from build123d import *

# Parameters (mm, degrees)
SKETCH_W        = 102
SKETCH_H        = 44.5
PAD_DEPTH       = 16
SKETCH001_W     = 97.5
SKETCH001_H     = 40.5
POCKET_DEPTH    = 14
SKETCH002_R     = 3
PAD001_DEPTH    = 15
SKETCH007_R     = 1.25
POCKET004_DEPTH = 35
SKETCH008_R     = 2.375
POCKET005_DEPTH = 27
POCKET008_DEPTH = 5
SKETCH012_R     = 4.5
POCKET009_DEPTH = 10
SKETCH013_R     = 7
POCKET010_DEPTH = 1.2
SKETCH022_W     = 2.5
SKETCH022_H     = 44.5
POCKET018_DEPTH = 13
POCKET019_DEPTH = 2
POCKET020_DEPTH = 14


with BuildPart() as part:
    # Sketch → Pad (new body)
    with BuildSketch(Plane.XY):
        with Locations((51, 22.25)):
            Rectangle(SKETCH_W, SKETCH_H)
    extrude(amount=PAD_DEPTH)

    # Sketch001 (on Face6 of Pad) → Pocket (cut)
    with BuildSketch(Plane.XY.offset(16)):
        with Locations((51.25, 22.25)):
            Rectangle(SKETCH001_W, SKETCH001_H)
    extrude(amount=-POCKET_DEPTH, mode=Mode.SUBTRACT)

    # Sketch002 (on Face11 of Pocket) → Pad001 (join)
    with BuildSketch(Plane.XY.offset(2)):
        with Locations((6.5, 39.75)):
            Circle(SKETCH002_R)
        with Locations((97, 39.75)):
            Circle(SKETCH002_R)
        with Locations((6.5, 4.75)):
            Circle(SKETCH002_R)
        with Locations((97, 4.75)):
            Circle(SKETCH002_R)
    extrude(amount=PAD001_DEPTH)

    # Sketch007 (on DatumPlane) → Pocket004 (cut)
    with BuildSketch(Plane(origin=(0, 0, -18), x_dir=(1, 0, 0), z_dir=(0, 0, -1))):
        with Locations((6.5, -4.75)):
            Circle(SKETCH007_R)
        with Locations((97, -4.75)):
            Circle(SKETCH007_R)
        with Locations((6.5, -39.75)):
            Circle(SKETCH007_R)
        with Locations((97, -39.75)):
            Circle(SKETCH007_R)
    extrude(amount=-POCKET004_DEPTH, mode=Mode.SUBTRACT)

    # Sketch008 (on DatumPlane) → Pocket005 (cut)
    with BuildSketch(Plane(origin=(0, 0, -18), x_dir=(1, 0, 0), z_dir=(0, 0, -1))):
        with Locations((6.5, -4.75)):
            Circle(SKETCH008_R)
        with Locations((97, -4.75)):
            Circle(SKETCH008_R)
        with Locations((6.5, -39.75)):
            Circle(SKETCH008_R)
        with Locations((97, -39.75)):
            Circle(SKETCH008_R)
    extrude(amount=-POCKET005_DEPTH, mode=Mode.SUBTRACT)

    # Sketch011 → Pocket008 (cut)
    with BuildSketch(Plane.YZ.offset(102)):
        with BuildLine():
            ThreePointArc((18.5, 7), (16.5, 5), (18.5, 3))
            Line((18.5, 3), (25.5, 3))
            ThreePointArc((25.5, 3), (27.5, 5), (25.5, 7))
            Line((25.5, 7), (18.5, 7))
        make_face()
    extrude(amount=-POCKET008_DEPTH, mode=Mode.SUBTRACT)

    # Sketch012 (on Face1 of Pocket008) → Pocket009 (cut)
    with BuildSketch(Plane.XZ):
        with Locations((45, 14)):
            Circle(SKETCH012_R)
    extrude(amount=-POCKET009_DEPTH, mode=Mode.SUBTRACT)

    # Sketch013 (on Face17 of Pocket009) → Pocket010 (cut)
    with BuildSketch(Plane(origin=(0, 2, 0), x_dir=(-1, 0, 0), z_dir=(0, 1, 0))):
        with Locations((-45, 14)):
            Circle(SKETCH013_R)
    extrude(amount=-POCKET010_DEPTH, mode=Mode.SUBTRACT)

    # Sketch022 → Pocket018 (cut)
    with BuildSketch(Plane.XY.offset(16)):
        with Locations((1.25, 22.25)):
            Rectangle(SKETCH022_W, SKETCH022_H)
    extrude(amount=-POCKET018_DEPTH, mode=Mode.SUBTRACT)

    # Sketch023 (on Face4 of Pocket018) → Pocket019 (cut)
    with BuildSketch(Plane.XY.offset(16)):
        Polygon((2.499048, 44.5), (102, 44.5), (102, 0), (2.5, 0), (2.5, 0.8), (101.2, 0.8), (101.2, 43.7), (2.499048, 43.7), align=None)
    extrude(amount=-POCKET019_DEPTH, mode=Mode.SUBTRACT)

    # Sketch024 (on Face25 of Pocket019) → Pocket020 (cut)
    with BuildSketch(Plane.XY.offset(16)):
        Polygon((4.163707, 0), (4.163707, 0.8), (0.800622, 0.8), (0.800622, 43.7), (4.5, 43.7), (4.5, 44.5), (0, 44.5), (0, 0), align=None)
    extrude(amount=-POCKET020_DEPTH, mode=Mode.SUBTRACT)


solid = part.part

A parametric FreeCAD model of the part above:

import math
import FreeCAD as App
import Part
import Sketcher

V = App.Vector


def add_polygon(sketch, points):
    """Adds a closed chain of lines whose ends are joined by coincident constraints."""
    first, n = sketch.GeometryCount, len(points)
    for a, b in zip(points, points[1:] + points[:1]):
        sketch.addGeometry(Part.LineSegment(App.Vector(*a, 0), App.Vector(*b, 0)), False)
    for i in range(n):
        sketch.addConstraint(Sketcher.Constraint("Coincident", first + i, 2, first + (i + 1) % n, 1))

doc = App.newDocument("Part")
body = doc.addObject("PartDesign::Body", "Body")

sketch1 = body.newObject("Sketcher::SketchObject", "Sketch")
sketch1.AttachmentSupport = (doc.getObject("XY_Plane"), [""])
sketch1.MapMode = "FlatFace"
add_polygon(sketch1, [(0, 44), (0, 0), (102, 0), (102, 44)])
sketch1.addConstraint(Sketcher.Constraint("Vertical", 0))
sketch1.addConstraint(Sketcher.Constraint("Horizontal", 1))
sketch1.addConstraint(Sketcher.Constraint("Vertical", 2))
sketch1.addConstraint(Sketcher.Constraint("Horizontal", 3))
sketch1.addConstraint(Sketcher.Constraint("Coincident", 0, 2, -1, 1))
sketch1.addConstraint(Sketcher.Constraint("DistanceX", 1, 1, 1, 2, 102.0))
sketch1.addConstraint(Sketcher.Constraint("DistanceY", 0, 2, 0, 1, 44.5))
pad1 = body.newObject("PartDesign::Pad", "Pad")
pad1.Profile = sketch1
pad1.Length = 16

sketch2 = body.newObject("Sketcher::SketchObject", "Sketch001")
sketch2.AttachmentSupport = (doc.getObject("XY_Plane"), [""])
sketch2.MapMode = "FlatFace"
sketch2.AttachmentOffset = App.Placement(V(0, 0, 16), App.Rotation())
add_polygon(sketch2, [(2, 42), (2, 2), (100, 2), (100, 42)])
sketch2.addConstraint(Sketcher.Constraint("Vertical", 0))
sketch2.addConstraint(Sketcher.Constraint("Horizontal", 1))
sketch2.addConstraint(Sketcher.Constraint("Vertical", 2))
sketch2.addConstraint(Sketcher.Constraint("Horizontal", 3))
sketch2.addConstraint(Sketcher.Constraint("DistanceX", 1, 1, 1, 2, 97.5))
sketch2.addConstraint(Sketcher.Constraint("DistanceY", 0, 2, 0, 1, 40.5))
sketch2.addConstraint(Sketcher.Constraint("DistanceY", -1, 1, 0, 2, 2.0))
sketch2.addConstraint(Sketcher.Constraint("DistanceX", -1, 1, 1, 2, 100.0))
pocket1 = body.newObject("PartDesign::Pocket", "Pocket")
pocket1.Profile = sketch2
pocket1.Length = 14

sketch3 = body.newObject("Sketcher::SketchObject", "Sketch002")
sketch3.AttachmentSupport = (doc.getObject("XY_Plane"), [""])
sketch3.MapMode = "FlatFace"
sketch3.AttachmentOffset = App.Placement(V(0, 0, 2), App.Rotation())
sketch3.addGeometry(Part.Circle(V(6.5, 39.8, 0), V(0, 0, 1), 3), False)
sketch3.addGeometry(Part.Circle(V(97, 39.8, 0), V(0, 0, 1), 3), False)
sketch3.addGeometry(Part.Circle(V(6.5, 4.8, 0), V(0, 0, 1), 3), False)
sketch3.addGeometry(Part.Circle(V(97, 4.8, 0), V(0, 0, 1), 3), False)
sketch3.addConstraint(Sketcher.Constraint("Equal", 0, 1))
sketch3.addConstraint(Sketcher.Constraint("Equal", 1, 2))
sketch3.addConstraint(Sketcher.Constraint("Equal", 2, 3))
sketch3.addConstraint(Sketcher.Constraint("Horizontal", 0, 3, 1, 3))
sketch3.addConstraint(Sketcher.Constraint("Horizontal", 2, 3, 3, 3))
sketch3.addConstraint(Sketcher.Constraint("Vertical", 0, 3, 2, 3))
sketch3.addConstraint(Sketcher.Constraint("Vertical", 1, 3, 3, 3))
sketch3.addConstraint(Sketcher.Constraint("Diameter", 0, 6.0))
sketch3.addConstraint(Sketcher.Constraint("DistanceX", -1, 1, 1, 3, 97.0))
sketch3.addConstraint(Sketcher.Constraint("DistanceY", 2, 3, 0, 3, 35.0))
sketch3.addConstraint(Sketcher.Constraint("DistanceX", -1, 1, 0, 3, 6.5))
sketch3.addConstraint(Sketcher.Constraint("DistanceY", -1, 1, 0, 3, 39.75))
pad2 = body.newObject("PartDesign::Pad", "Pad001")
pad2.Profile = sketch3
pad2.Length = 15

sketch4 = body.newObject("Sketcher::SketchObject", "Sketch003")
sketch4.AttachmentSupport = (doc.getObject("XY_Plane"), [""])
sketch4.MapMode = "FlatFace"
sketch4.AttachmentOffset = App.Placement(V(0, 0, -18), App.Rotation())
sketch4.addGeometry(Part.Circle(V(6.5, 4.8, 0), V(0, 0, 1), 1.2), False)
sketch4.addGeometry(Part.Circle(V(97, 4.8, 0), V(0, 0, 1), 1.2), False)
sketch4.addGeometry(Part.Circle(V(6.5, 39.8, 0), V(0, 0, 1), 1.2), False)
sketch4.addGeometry(Part.Circle(V(97, 39.8, 0), V(0, 0, 1), 1.2), False)
sketch4.addConstraint(Sketcher.Constraint("Equal", 0, 1))
sketch4.addConstraint(Sketcher.Constraint("Equal", 1, 2))
sketch4.addConstraint(Sketcher.Constraint("Equal", 2, 3))
sketch4.addConstraint(Sketcher.Constraint("Horizontal", 0, 3, 1, 3))
sketch4.addConstraint(Sketcher.Constraint("Horizontal", 2, 3, 3, 3))
sketch4.addConstraint(Sketcher.Constraint("Vertical", 0, 3, 2, 3))
sketch4.addConstraint(Sketcher.Constraint("Vertical", 1, 3, 3, 3))
sketch4.addConstraint(Sketcher.Constraint("Diameter", 0, 2.5))
sketch4.addConstraint(Sketcher.Constraint("DistanceX", -1, 1, 1, 3, 97.0))
sketch4.addConstraint(Sketcher.Constraint("DistanceY", 0, 3, 2, 3, 35.0))
sketch4.addConstraint(Sketcher.Constraint("DistanceX", -1, 1, 0, 3, 6.5))
sketch4.addConstraint(Sketcher.Constraint("DistanceY", -1, 1, 0, 3, 4.75))
pocket2 = body.newObject("PartDesign::Pocket", "Pocket001")
pocket2.Profile = sketch4
pocket2.Length = 35
pocket2.Reversed = True

sketch5 = body.newObject("Sketcher::SketchObject", "Sketch004")
sketch5.AttachmentSupport = (doc.getObject("XY_Plane"), [""])
sketch5.MapMode = "FlatFace"
sketch5.AttachmentOffset = App.Placement(V(0, 0, -18), App.Rotation())
sketch5.addGeometry(Part.Circle(V(6.5, 4.8, 0), V(0, 0, 1), 2.4), False)
sketch5.addGeometry(Part.Circle(V(97, 4.8, 0), V(0, 0, 1), 2.4), False)
sketch5.addGeometry(Part.Circle(V(6.5, 39.8, 0), V(0, 0, 1), 2.4), False)
sketch5.addGeometry(Part.Circle(V(97, 39.8, 0), V(0, 0, 1), 2.4), False)
sketch5.addConstraint(Sketcher.Constraint("Equal", 0, 1))
sketch5.addConstraint(Sketcher.Constraint("Equal", 1, 2))
sketch5.addConstraint(Sketcher.Constraint("Equal", 2, 3))
sketch5.addConstraint(Sketcher.Constraint("Horizontal", 0, 3, 1, 3))
sketch5.addConstraint(Sketcher.Constraint("Horizontal", 2, 3, 3, 3))
sketch5.addConstraint(Sketcher.Constraint("Vertical", 0, 3, 2, 3))
sketch5.addConstraint(Sketcher.Constraint("Vertical", 1, 3, 3, 3))
sketch5.addConstraint(Sketcher.Constraint("Diameter", 0, 4.75))
sketch5.addConstraint(Sketcher.Constraint("DistanceX", -1, 1, 1, 3, 97.0))
sketch5.addConstraint(Sketcher.Constraint("DistanceY", 0, 3, 2, 3, 35.0))
sketch5.addConstraint(Sketcher.Constraint("DistanceX", -1, 1, 0, 3, 6.5))
sketch5.addConstraint(Sketcher.Constraint("DistanceY", -1, 1, 0, 3, 4.75))
pocket3 = body.newObject("PartDesign::Pocket", "Pocket002")
pocket3.Profile = sketch5
pocket3.Length = 27
pocket3.Reversed = True

sketch6 = body.newObject("Sketcher::SketchObject", "Sketch005")
sketch6.AttachmentSupport = (doc.getObject("YZ_Plane"), [""])
sketch6.MapMode = "FlatFace"
sketch6.AttachmentOffset = App.Placement(V(0, 0, 102), App.Rotation())
sketch6.addGeometry(Part.ArcOfCircle(Part.Circle(V(18.5, 5, 0), V(0, 0, 1), 2), math.radians(90), math.radians(270)), False)
sketch6.addGeometry(Part.LineSegment(V(18.5, 3, 0), V(25.5, 3, 0)), False)
sketch6.addGeometry(Part.ArcOfCircle(Part.Circle(V(25.5, 5, 0), V(0, 0, 1), 2), math.radians(-90), math.radians(90)), False)
sketch6.addGeometry(Part.LineSegment(V(25.5, 7, 0), V(18.5, 7, 0)), False)
sketch6.addConstraint(Sketcher.Constraint("Tangent", 0, 2, 1, 1))
sketch6.addConstraint(Sketcher.Constraint("Tangent", 1, 2, 2, 1))
sketch6.addConstraint(Sketcher.Constraint("Tangent", 2, 2, 3, 1))
sketch6.addConstraint(Sketcher.Constraint("Tangent", 3, 2, 0, 1))
sketch6.addConstraint(Sketcher.Constraint("Horizontal", 1))
sketch6.addConstraint(Sketcher.Constraint("Horizontal", 3))
sketch6.addConstraint(Sketcher.Constraint("Radius", 0, 2.0))
sketch6.addConstraint(Sketcher.Constraint("DistanceX", 1, 1, 1, 2, 7.0))
sketch6.addConstraint(Sketcher.Constraint("DistanceY", -1, 1, 0, 3, 5.0))
sketch6.addConstraint(Sketcher.Constraint("DistanceX", -1, 1, 0, 3, 18.5))
pocket4 = body.newObject("PartDesign::Pocket", "Pocket003")
pocket4.Profile = sketch6
pocket4.Length = 5

sketch7 = body.newObject("Sketcher::SketchObject", "Sketch006")
sketch7.AttachmentSupport = (doc.getObject("XZ_Plane"), [""])
sketch7.MapMode = "FlatFace"
sketch7.addGeometry(Part.Circle(V(45, 14, 0), V(0, 0, 1), 4.5), False)
sketch7.addConstraint(Sketcher.Constraint("Diameter", 0, 9.0))
sketch7.addConstraint(Sketcher.Constraint("DistanceX", -1, 1, 0, 3, 45.0))
sketch7.addConstraint(Sketcher.Constraint("DistanceY", -1, 1, 0, 3, 14.0))
pocket5 = body.newObject("PartDesign::Pocket", "Pocket004")
pocket5.Profile = sketch7
pocket5.Length = 10

sketch8 = body.newObject("Sketcher::SketchObject", "Sketch007")
sketch8.AttachmentSupport = (doc.getObject("XZ_Plane"), [""])
sketch8.MapMode = "FlatFace"
sketch8.AttachmentOffset = App.Placement(V(0, 0, -2), App.Rotation())
sketch8.addGeometry(Part.Circle(V(45, 14, 0), V(0, 0, 1), 7), False)
sketch8.addConstraint(Sketcher.Constraint("Diameter", 0, 14.0))
sketch8.addConstraint(Sketcher.Constraint("DistanceX", -1, 1, 0, 3, 45.0))
sketch8.addConstraint(Sketcher.Constraint("DistanceY", -1, 1, 0, 3, 14.0))
pocket6 = body.newObject("PartDesign::Pocket", "Pocket005")
pocket6.Profile = sketch8
pocket6.Length = 1.2
pocket6.Reversed = True

sketch9 = body.newObject("Sketcher::SketchObject", "Sketch008")
sketch9.AttachmentSupport = (doc.getObject("XY_Plane"), [""])
sketch9.MapMode = "FlatFace"
sketch9.AttachmentOffset = App.Placement(V(0, 0, 16), App.Rotation())
add_polygon(sketch9, [(0, 44.5), (0, 0), (2.5, 0), (2.5, 44.5)])
sketch9.addConstraint(Sketcher.Constraint("Vertical", 0))
sketch9.addConstraint(Sketcher.Constraint("Horizontal", 1))
sketch9.addConstraint(Sketcher.Constraint("Vertical", 2))
sketch9.addConstraint(Sketcher.Constraint("Horizontal", 3))
sketch9.addConstraint(Sketcher.Constraint("Coincident", 0, 2, -1, 1))
sketch9.addConstraint(Sketcher.Constraint("DistanceX", 1, 1, 1, 2, 2.5))
sketch9.addConstraint(Sketcher.Constraint("DistanceY", 0, 2, 0, 1, 44.5))
pocket7 = body.newObject("PartDesign::Pocket", "Pocket006")
pocket7.Profile = sketch9
pocket7.Length = 13

sketch10 = body.newObject("Sketcher::SketchObject", "Sketch009")
sketch10.AttachmentSupport = (doc.getObject("XY_Plane"), [""])
sketch10.MapMode = "FlatFace"
sketch10.AttachmentOffset = App.Placement(V(0, 0, 16), App.Rotation())
add_polygon(sketch10, [(102, 44.5), (2.5, 44.5), (2.5, 43.7), (101.2, 43.7), (101.2, 0.8), (2.5, 0.8), (2.5, 0), (102, 0)])
sketch10.addConstraint(Sketcher.Constraint("Horizontal", 0))
sketch10.addConstraint(Sketcher.Constraint("Vertical", 1))
sketch10.addConstraint(Sketcher.Constraint("Horizontal", 2))
sketch10.addConstraint(Sketcher.Constraint("Vertical", 3))
sketch10.addConstraint(Sketcher.Constraint("Horizontal", 4))
sketch10.addConstraint(Sketcher.Constraint("Vertical", 5))
sketch10.addConstraint(Sketcher.Constraint("Horizontal", 6))
sketch10.addConstraint(Sketcher.Constraint("Vertical", 7))
sketch10.addConstraint(Sketcher.Constraint("PointOnObject", 5, 2, -1))
sketch10.addConstraint(Sketcher.Constraint("Equal", 1, 5))
sketch10.addConstraint(Sketcher.Constraint("DistanceX", 4, 2, 4, 1, 98.7))
sketch10.addConstraint(Sketcher.Constraint("DistanceX", 6, 1, 6, 2, 99.5))
sketch10.addConstraint(Sketcher.Constraint("DistanceY", 1, 2, 1, 1, 0.8))
sketch10.addConstraint(Sketcher.Constraint("DistanceY", 3, 2, 3, 1, 42.9))
sketch10.addConstraint(Sketcher.Constraint("DistanceX", -1, 1, 6, 2, 102.0))
sketch10.addConstraint(Sketcher.Constraint("DistanceX", 0, 2, 0, 1, 99.500952))
pocket8 = body.newObject("PartDesign::Pocket", "Pocket007")
pocket8.Profile = sketch10
pocket8.Length = 2

sketch11 = body.newObject("Sketcher::SketchObject", "Sketch010")
sketch11.AttachmentSupport = (doc.getObject("XY_Plane"), [""])
sketch11.MapMode = "FlatFace"
sketch11.AttachmentOffset = App.Placement(V(0, 0, 16), App.Rotation())
add_polygon(sketch11, [(4.2, 0), (4.2, 0.8), (0.8, 0.8), (0.8, 43.7), (4.5, 43.7), (4.5, 44.5), (0, 44.5), (0, 0)])
sketch11.addConstraint(Sketcher.Constraint("Vertical", 0))
sketch11.addConstraint(Sketcher.Constraint("Horizontal", 1))
sketch11.addConstraint(Sketcher.Constraint("Vertical", 2))
sketch11.addConstraint(Sketcher.Constraint("Horizontal", 3))
sketch11.addConstraint(Sketcher.Constraint("Vertical", 4))
sketch11.addConstraint(Sketcher.Constraint("Horizontal", 5))
sketch11.addConstraint(Sketcher.Constraint("Vertical", 6))
sketch11.addConstraint(Sketcher.Constraint("Horizontal", 7))
sketch11.addConstraint(Sketcher.Constraint("Coincident", 6, 2, -1, 1))
sketch11.addConstraint(Sketcher.Constraint("Equal", 0, 4))
sketch11.addConstraint(Sketcher.Constraint("DistanceX", 5, 2, 5, 1, 4.5))
sketch11.addConstraint(Sketcher.Constraint("DistanceY", 0, 1, 0, 2, 0.8))
sketch11.addConstraint(Sketcher.Constraint("DistanceY", 2, 1, 2, 2, 42.9))
sketch11.addConstraint(Sketcher.Constraint("DistanceX", 3, 1, 3, 2, 3.699378))
sketch11.addConstraint(Sketcher.Constraint("DistanceX", 1, 2, 1, 1, 3.363085))
pocket9 = body.newObject("PartDesign::Pocket", "Pocket008")
pocket9.Profile = sketch11
pocket9.Length = 14

doc.recompute()
